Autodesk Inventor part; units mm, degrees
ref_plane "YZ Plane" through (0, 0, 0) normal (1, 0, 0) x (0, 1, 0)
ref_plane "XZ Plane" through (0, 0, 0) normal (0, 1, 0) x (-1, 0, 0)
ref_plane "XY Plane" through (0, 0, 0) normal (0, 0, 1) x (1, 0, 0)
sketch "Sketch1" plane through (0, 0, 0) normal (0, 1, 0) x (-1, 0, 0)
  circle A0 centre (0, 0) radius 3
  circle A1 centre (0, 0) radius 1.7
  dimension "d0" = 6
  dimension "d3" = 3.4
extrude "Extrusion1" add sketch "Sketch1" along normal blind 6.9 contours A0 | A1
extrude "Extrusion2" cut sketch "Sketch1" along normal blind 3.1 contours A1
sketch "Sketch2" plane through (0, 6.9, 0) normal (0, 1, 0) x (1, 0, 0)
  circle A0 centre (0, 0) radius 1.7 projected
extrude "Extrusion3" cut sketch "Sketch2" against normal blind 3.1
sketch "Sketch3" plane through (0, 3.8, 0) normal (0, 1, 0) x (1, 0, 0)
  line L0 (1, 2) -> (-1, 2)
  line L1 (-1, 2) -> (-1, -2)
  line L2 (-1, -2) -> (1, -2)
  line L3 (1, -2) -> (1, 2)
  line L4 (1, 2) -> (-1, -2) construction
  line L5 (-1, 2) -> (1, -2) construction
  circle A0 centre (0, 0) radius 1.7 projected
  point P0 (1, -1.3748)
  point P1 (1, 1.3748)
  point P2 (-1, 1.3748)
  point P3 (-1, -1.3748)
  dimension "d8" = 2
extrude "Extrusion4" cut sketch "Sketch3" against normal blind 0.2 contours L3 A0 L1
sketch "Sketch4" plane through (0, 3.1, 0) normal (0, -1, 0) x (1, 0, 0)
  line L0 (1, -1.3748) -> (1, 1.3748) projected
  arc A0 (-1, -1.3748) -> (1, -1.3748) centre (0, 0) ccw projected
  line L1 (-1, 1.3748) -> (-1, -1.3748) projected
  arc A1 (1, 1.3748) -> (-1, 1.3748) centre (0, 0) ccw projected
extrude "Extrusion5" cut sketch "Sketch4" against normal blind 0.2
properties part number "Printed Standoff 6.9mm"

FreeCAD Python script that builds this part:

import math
import FreeCAD as App
import Part
import Sketcher
from FreeCAD import Vector

doc = App.newDocument("Part")
body = doc.addObject("PartDesign::Body", "Body")

# Sketch on XZ plane
sketch1 = body.newObject("Sketcher::SketchObject", "Sketch")
sketch1.AttachmentSupport = (doc.getObject("XZ_Plane"), [""])
sketch1.MapMode = "FlatFace"
sketch1.addGeometry(Part.Circle(Vector(0, 0, 0), Vector(0, 0, 1), 3), False)
sketch1.addConstraint(Sketcher.Constraint("Coincident", 0, 3, -1, 1))
sketch1.addConstraint(Sketcher.Constraint("Diameter", 0, 6.0))
pad1 = body.newObject("PartDesign::Pad", "Pad")
pad1.Profile = sketch1
pad1.Length = 6.9
pad1.Reversed = True

# Sketch on XZ plane
sketch2 = body.newObject("Sketcher::SketchObject", "Sketch001")
sketch2.AttachmentSupport = (doc.getObject("XZ_Plane"), [""])
sketch2.MapMode = "FlatFace"
sketch2.addGeometry(Part.Circle(Vector(0, 0, 0), Vector(0, 0, 1), 1.7), False)
sketch2.addConstraint(Sketcher.Constraint("Coincident", 0, 3, -1, 1))
sketch2.addConstraint(Sketcher.Constraint("Diameter", 0, 3.4))
pocket1 = body.newObject("PartDesign::Pocket", "Pocket")
pocket1.Profile = sketch2
pocket1.Length = 3.1

# Sketch on XZ plane
sketch3 = body.newObject("Sketcher::SketchObject", "Sketch002")
sketch3.AttachmentSupport = (doc.getObject("XZ_Plane"), [""])
sketch3.MapMode = "FlatFace"
sketch3.AttachmentOffset = App.Placement(Vector(0, 0, -6.9), App.Rotation())
sketch3.addGeometry(Part.Circle(Vector(0, 0, 0), Vector(0, 0, 1), 1.7), False)
sketch3.addConstraint(Sketcher.Constraint("Coincident", 0, 3, -1, 1))
sketch3.addConstraint(Sketcher.Constraint("Diameter", 0, 3.4))
pocket2 = body.newObject("PartDesign::Pocket", "Pocket001")
pocket2.Profile = sketch3
pocket2.Length = 3.1
pocket2.Reversed = True

# Sketch on XZ plane
sketch4 = body.newObject("Sketcher::SketchObject", "Sketch003")
sketch4.AttachmentSupport = (doc.getObject("XZ_Plane"), [""])
sketch4.MapMode = "FlatFace"
sketch4.AttachmentOffset = App.Placement(Vector(0, 0, -3.8), App.Rotation())
sketch4.addGeometry(Part.LineSegment(Vector(1, 1.4, 0), Vector(1, -1.4, 0)), False)
sketch4.addGeometry(Part.ArcOfCircle(Part.Circle(Vector(0, 0, 0), Vector(0, 0, 1), 1.7), math.radians(-126), math.radians(-54)), False)
sketch4.addGeometry(Part.LineSegment(Vector(-1, -1.4, 0), Vector(-1, 1.4, 0)), False)
sketch4.addGeometry(Part.ArcOfCircle(Part.Circle(Vector(0, 0, 0), Vector(0, 0, 1), 1.7), math.radians(54), math.radians(126)), False)
sketch4.addConstraint(Sketcher.Constraint("Coincident", 0, 2, 1, 2))
sketch4.addConstraint(Sketcher.Constraint("Coincident", 1, 1, 2, 1))
sketch4.addConstraint(Sketcher.Constraint("Coincident", 2, 2, 3, 2))
sketch4.addConstraint(Sketcher.Constraint("Coincident", 3, 1, 0, 1))
sketch4.addConstraint(Sketcher.Constraint("Vertical", 0))
sketch4.addConstraint(Sketcher.Constraint("Vertical", 2))
sketch4.addConstraint(Sketcher.Constraint("Coincident", 1, 3, -1, 1))
sketch4.addConstraint(Sketcher.Constraint("Coincident", 3, 3, -1, 1))
sketch4.addConstraint(Sketcher.Constraint("Equal", 1, 3))
sketch4.addConstraint(Sketcher.Constraint("Horizontal", 0, 2, 1, 1))
sketch4.addConstraint(Sketcher.Constraint("DistanceX", 1, 1, 0, 2, 2.0))
sketch4.addConstraint(Sketcher.Constraint("Radius", 1, 1.7))
pocket3 = body.newObject("PartDesign::Pocket", "Pocket002")
pocket3.Profile = sketch4
pocket3.Length = 0.2
pocket3.Reversed = True

# Sketch on XZ plane
sketch5 = body.newObject("Sketcher::SketchObject", "Sketch004")
sketch5.AttachmentSupport = (doc.getObject("XZ_Plane"), [""])
sketch5.MapMode = "FlatFace"
sketch5.AttachmentOffset = App.Placement(Vector(0, 0, -3.1), App.Rotation())
sketch5.addGeometry(Part.ArcOfCircle(Part.Circle(Vector(0, 0, 0), Vector(0, 0, 1), 1.7), math.radians(-126), math.radians(-54)), False)
sketch5.addGeometry(Part.LineSegment(Vector(1, -1.4, 0), Vector(1, 1.4, 0)), False)
sketch5.addGeometry(Part.ArcOfCircle(Part.Circle(Vector(0, 0, 0), Vector(0, 0, 1), 1.7), math.radians(54), math.radians(126)), False)
sketch5.addGeometry(Part.LineSegment(Vector(-1, 1.4, 0), Vector(-1, -1.4, 0)), False)
sketch5.addConstraint(Sketcher.Constraint("Coincident", 0, 2, 1, 1))
sketch5.addConstraint(Sketcher.Constraint("Coincident", 1, 2, 2, 1))
sketch5.addConstraint(Sketcher.Constraint("Coincident", 2, 2, 3, 1))
sketch5.addConstraint(Sketcher.Constraint("Coincident", 3, 2, 0, 1))
sketch5.addConstraint(Sketcher.Constraint("Vertical", 1))
sketch5.addConstraint(Sketcher.Constraint("Vertical", 3))
sketch5.addConstraint(Sketcher.Constraint("Coincident", 0, 3, -1, 1))
sketch5.addConstraint(Sketcher.Constraint("Coincident", 2, 3, -1, 1))
sketch5.addConstraint(Sketcher.Constraint("Equal", 0, 2))
sketch5.addConstraint(Sketcher.Constraint("Horizontal", 1, 2, 2, 2))
sketch5.addConstraint(Sketcher.Constraint("Radius", 0, 1.7))
sketch5.addConstraint(Sketcher.Constraint("DistanceX", -1, 1, 0, 2, 1.0))
pocket4 = body.newObject("PartDesign::Pocket", "Pocket003")
pocket4.Profile = sketch5
pocket4.Length = 0.2

doc.recompute()
